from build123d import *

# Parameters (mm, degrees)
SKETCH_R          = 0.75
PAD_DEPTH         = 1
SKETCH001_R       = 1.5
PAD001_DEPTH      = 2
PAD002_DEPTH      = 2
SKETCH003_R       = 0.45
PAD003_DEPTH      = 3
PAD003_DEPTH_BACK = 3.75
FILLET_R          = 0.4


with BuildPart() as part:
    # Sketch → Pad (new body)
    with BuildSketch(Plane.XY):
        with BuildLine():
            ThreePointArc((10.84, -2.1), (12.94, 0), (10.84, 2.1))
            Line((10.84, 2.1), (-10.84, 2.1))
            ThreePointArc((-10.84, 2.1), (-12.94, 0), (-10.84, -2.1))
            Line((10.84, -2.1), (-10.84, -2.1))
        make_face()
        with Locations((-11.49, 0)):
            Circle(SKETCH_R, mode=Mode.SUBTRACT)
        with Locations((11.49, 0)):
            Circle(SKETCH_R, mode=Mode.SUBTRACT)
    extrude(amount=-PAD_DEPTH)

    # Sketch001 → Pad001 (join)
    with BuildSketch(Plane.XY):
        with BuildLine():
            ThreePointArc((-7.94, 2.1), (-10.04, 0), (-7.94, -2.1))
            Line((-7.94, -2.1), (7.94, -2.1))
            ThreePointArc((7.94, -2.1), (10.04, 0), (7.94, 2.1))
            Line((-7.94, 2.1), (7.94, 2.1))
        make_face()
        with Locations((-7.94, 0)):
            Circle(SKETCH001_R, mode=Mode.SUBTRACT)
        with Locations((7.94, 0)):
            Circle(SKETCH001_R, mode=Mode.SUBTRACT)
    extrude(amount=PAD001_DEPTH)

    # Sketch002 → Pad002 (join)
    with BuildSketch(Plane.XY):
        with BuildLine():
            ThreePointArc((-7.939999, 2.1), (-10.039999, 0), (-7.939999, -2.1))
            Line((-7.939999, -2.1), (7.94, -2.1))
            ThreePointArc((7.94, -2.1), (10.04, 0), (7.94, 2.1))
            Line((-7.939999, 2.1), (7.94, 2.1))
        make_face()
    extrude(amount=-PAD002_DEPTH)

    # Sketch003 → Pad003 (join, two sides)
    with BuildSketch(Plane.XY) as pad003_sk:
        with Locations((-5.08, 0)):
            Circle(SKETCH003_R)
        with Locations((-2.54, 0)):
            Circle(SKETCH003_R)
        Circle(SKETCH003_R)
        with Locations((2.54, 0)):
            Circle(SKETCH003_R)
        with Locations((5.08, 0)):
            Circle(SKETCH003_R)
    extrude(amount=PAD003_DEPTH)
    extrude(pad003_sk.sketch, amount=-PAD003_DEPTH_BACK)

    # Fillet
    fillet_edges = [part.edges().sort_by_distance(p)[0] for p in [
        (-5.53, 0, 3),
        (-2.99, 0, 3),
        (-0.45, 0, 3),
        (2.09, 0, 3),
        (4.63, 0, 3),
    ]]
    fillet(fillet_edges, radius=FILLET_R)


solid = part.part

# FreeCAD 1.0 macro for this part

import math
import FreeCAD as App
import Part
import Sketcher
from FreeCAD import Vector


def edges_at(feature, points):
    """Names of the edges that pass closest to the given points."""
    edges = feature.Shape.Edges
    near = lambda p: min(range(len(edges)), key=lambda i: edges[i].distToShape(Part.Vertex(*p))[0])
    return sorted({f"Edge{near(p) + 1}" for p in points})

doc = App.newDocument("Part")
body = doc.addObject("PartDesign::Body", "Body")

sketch1 = body.newObject("Sketcher::SketchObject", "Sketch")
sketch1.AttachmentSupport = (doc.getObject("XY_Plane"), [""])
sketch1.MapMode = "FlatFace"
sketch1.addGeometry(Part.ArcOfCircle(Part.Circle(Vector(10.8, 0, 0), Vector(0, 0, 1), 2.1), math.radians(-90), math.radians(90)), False)
sketch1.addGeometry(Part.LineSegment(Vector(10.8, 2.1, 0), Vector(-10.8, 2.1, 0)), False)
sketch1.addGeometry(Part.ArcOfCircle(Part.Circle(Vector(-10.8, 0, 0), Vector(0, 0, 1), 2.1), math.radians(90), math.radians(270)), False)
sketch1.addGeometry(Part.LineSegment(Vector(-10.8, -2.1, 0), Vector(10.8, -2.1, 0)), False)
sketch1.addGeometry(Part.Circle(Vector(-11.5, 0, 0), Vector(0, 0, 1), 0.8), False)
sketch1.addGeometry(Part.Circle(Vector(11.5, 0, 0), Vector(0, 0, 1), 0.8), False)
sketch1.addConstraint(Sketcher.Constraint("Tangent", 0, 2, 1, 1))
sketch1.addConstraint(Sketcher.Constraint("Tangent", 1, 2, 2, 1))
sketch1.addConstraint(Sketcher.Constraint("Tangent", 2, 2, 3, 1))
sketch1.addConstraint(Sketcher.Constraint("Tangent", 3, 2, 0, 1))
sketch1.addConstraint(Sketcher.Constraint("Horizontal", 1))
sketch1.addConstraint(Sketcher.Constraint("Horizontal", 3))
sketch1.addConstraint(Sketcher.Constraint("Equal", 4, 5))
sketch1.addConstraint(Sketcher.Constraint("Symmetric", 0, 3, 2, 3, -1, 1))
sketch1.addConstraint(Sketcher.Constraint("Symmetric", 4, 3, 5, 3, -1, 1))
sketch1.addConstraint(Sketcher.Constraint("PointOnObject", 4, 3, -1))
sketch1.addConstraint(Sketcher.Constraint("Diameter", 4, 1.5))
sketch1.addConstraint(Sketcher.Constraint("Radius", 0, 2.1))
sketch1.addConstraint(Sketcher.Constraint("DistanceX", 1, 2, 1, 1, 21.68))
sketch1.addConstraint(Sketcher.Constraint("DistanceX", 4, 3, -1, 1, 11.49))
pad1 = body.newObject("PartDesign::Pad", "Pad")
pad1.Profile = sketch1
pad1.Length = 1
pad1.Reversed = True

sketch2 = body.newObject("Sketcher::SketchObject", "Sketch001")
sketch2.AttachmentSupport = (doc.getObject("XY_Plane"), [""])
sketch2.MapMode = "FlatFace"
sketch2.addGeometry(Part.ArcOfCircle(Part.Circle(Vector(-7.9, 0, 0), Vector(0, 0, 1), 2.1), math.radians(90), math.radians(270)), False)
sketch2.addGeometry(Part.LineSegment(Vector(-7.9, -2.1, 0), Vector(7.9, -2.1, 0)), False)
sketch2.addGeometry(Part.ArcOfCircle(Part.Circle(Vector(7.9, 0, 0), Vector(0, 0, 1), 2.1), math.radians(-90), math.radians(90)), False)
sketch2.addGeometry(Part.LineSegment(Vector(7.9, 2.1, 0), Vector(-7.9, 2.1, 0)), False)
sketch2.addGeometry(Part.Circle(Vector(-7.9, 0, 0), Vector(0, 0, 1), 1.5), False)
sketch2.addGeometry(Part.Circle(Vector(7.9, 0, 0), Vector(0, 0, 1), 1.5), False)
sketch2.addConstraint(Sketcher.Constraint("Tangent", 0, 2, 1, 1))
sketch2.addConstraint(Sketcher.Constraint("Tangent", 1, 2, 2, 1))
sketch2.addConstraint(Sketcher.Constraint("Tangent", 2, 2, 3, 1))
sketch2.addConstraint(Sketcher.Constraint("Tangent", 3, 2, 0, 1))
sketch2.addConstraint(Sketcher.Constraint("Horizontal", 1))
sketch2.addConstraint(Sketcher.Constraint("Horizontal", 3))
sketch2.addConstraint(Sketcher.Constraint("Coincident", 4, 3, 0, 3))
sketch2.addConstraint(Sketcher.Constraint("Coincident", 5, 3, 2, 3))
sketch2.addConstraint(Sketcher.Constraint("Equal", 4, 5))
sketch2.addConstraint(Sketcher.Constraint("Symmetric", 0, 3, 2, 3, -1, 1))
sketch2.addConstraint(Sketcher.Constraint("Diameter", 4, 3.0))
sketch2.addConstraint(Sketcher.Constraint("Radius", 0, 2.1))
sketch2.addConstraint(Sketcher.Constraint("DistanceX", 1, 1, 1, 2, 15.88))
pad2 = body.newObject("PartDesign::Pad", "Pad001")
pad2.Profile = sketch2
pad2.Length = 2

sketch3 = body.newObject("Sketcher::SketchObject", "Sketch002")
sketch3.AttachmentSupport = (doc.getObject("XY_Plane"), [""])
sketch3.MapMode = "FlatFace"
sketch3.addGeometry(Part.ArcOfCircle(Part.Circle(Vector(-7.9, 0, 0), Vector(0, 0, 1), 2.1), math.radians(90), math.radians(270)), False)
sketch3.addGeometry(Part.LineSegment(Vector(-7.9, -2.1, 0), Vector(7.9, -2.1, 0)), False)
sketch3.addGeometry(Part.ArcOfCircle(Part.Circle(Vector(7.9, 0, 0), Vector(0, 0, 1), 2.1), math.radians(-90), math.radians(90)), False)
sketch3.addGeometry(Part.LineSegment(Vector(7.9, 2.1, 0), Vector(-7.9, 2.1, 0)), False)
sketch3.addConstraint(Sketcher.Constraint("Tangent", 0, 2, 1, 1))
sketch3.addConstraint(Sketcher.Constraint("Tangent", 1, 2, 2, 1))
sketch3.addConstraint(Sketcher.Constraint("Tangent", 2, 2, 3, 1))
sketch3.addConstraint(Sketcher.Constraint("Tangent", 3, 2, 0, 1))
sketch3.addConstraint(Sketcher.Constraint("Horizontal", 1))
sketch3.addConstraint(Sketcher.Constraint("Horizontal", 3))
sketch3.addConstraint(Sketcher.Constraint("Symmetric", 0, 3, 2, 3, -1, 1))
sketch3.addConstraint(Sketcher.Constraint("Radius", 0, 2.1))
sketch3.addConstraint(Sketcher.Constraint("DistanceX", 1, 1, 1, 2, 15.879999))
pad3 = body.newObject("PartDesign::Pad", "Pad002")
pad3.Profile = sketch3
pad3.Length = 2
pad3.Reversed = True

sketch4 = body.newObject("Sketcher::SketchObject", "Sketch003")
sketch4.AttachmentSupport = (doc.getObject("XY_Plane"), [""])
sketch4.MapMode = "FlatFace"
sketch4.addGeometry(Part.Circle(Vector(-5.08, 0, 0), Vector(0, 0, 1), 0.45), False)
sketch4.addGeometry(Part.Circle(Vector(-2.54, 0, 0), Vector(0, 0, 1), 0.45), False)
sketch4.addGeometry(Part.Circle(Vector(0, 0, 0), Vector(0, 0, 1), 0.45), False)
sketch4.addGeometry(Part.Circle(Vector(2.54, 0, 0), Vector(0, 0, 1), 0.45), False)
sketch4.addGeometry(Part.Circle(Vector(5.08, 0, 0), Vector(0, 0, 1), 0.45), False)
sketch4.addConstraint(Sketcher.Constraint("Coincident", 2, 3, -1, 1))
sketch4.addConstraint(Sketcher.Constraint("Equal", 0, 1))
sketch4.addConstraint(Sketcher.Constraint("Equal", 1, 2))
sketch4.addConstraint(Sketcher.Constraint("Equal", 2, 3))
sketch4.addConstraint(Sketcher.Constraint("Equal", 3, 4))
sketch4.addConstraint(Sketcher.Constraint("Symmetric", 1, 3, 3, 3, -1, 1))
sketch4.addConstraint(Sketcher.Constraint("Symmetric", 0, 3, 4, 3, -1, 1))
sketch4.addConstraint(Sketcher.Constraint("PointOnObject", 0, 3, -1))
sketch4.addConstraint(Sketcher.Constraint("PointOnObject", 1, 3, -1))
sketch4.addConstraint(Sketcher.Constraint("Diameter", 0, 0.9))
sketch4.addConstraint(Sketcher.Constraint("DistanceX", 0, 3, -1, 1, 5.08))
sketch4.addConstraint(Sketcher.Constraint("DistanceX", 1, 3, -1, 1, 2.54))
pad4 = body.newObject("PartDesign::Pad", "Pad003")
pad4.Profile = sketch4
pad4.Type = "TwoLengths"
pad4.Length = 3
pad4.Length2 = 3.75
doc.recompute()

fillet = body.newObject("PartDesign::Fillet", "Fillet")
fillet.Base = (pad4, edges_at(pad4, [
    (-5.53, 0, 3),
    (-2.99, 0, 3),
    (-0.45, 0, 3),
    (2.09, 0, 3),
    (4.63, 0, 3),
]))
fillet.Radius = 0.4

doc.recompute()
